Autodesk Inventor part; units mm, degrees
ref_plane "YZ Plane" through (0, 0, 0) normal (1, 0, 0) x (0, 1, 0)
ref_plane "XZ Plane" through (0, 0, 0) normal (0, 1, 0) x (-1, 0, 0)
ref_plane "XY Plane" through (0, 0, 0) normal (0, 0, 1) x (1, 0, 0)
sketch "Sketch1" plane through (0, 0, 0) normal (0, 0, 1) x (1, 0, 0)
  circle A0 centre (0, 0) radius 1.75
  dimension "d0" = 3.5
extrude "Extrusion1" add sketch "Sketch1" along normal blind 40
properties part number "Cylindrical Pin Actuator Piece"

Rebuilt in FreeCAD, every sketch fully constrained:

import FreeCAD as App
import Part
import Sketcher

V = App.Vector
Q = App.Units.Quantity

doc = App.newDocument("Part")
params = doc.addObject("Spreadsheet::Sheet", "Params")
for row, (alias, value) in enumerate([
    ("sketch1_diameter", "3.5 mm"),
    ("pad1_length", "40 mm"),
], start=1):
    params.set(f"A{row}", alias)
    params.set(f"B{row}", "=" + value)
    params.setAlias(f"B{row}", alias)

body = doc.addObject("PartDesign::Body", "Body")

sketch1 = body.newObject("Sketcher::SketchObject", "Sketch")
sketch1.AttachmentSupport = (doc.getObject("XY_Plane"), [""])
sketch1.MapMode = "FlatFace"
sketch1.addGeometry(Part.Circle(V(0, 0, 0), V(0, 0, 1), 1.8), False)
sketch1.addConstraint(Sketcher.Constraint("Coincident", 0, 3, -1, 1))
sketch1.addConstraint(Sketcher.Constraint("Diameter", 0, Q("3.5 mm")))
sketch1.setExpression("Constraints[1]", "Params.sketch1_diameter")
pad1 = body.newObject("PartDesign::Pad", "Pad")
pad1.Profile = sketch1
pad1.setExpression("Length", "Params.pad1_length")

doc.recompute()
